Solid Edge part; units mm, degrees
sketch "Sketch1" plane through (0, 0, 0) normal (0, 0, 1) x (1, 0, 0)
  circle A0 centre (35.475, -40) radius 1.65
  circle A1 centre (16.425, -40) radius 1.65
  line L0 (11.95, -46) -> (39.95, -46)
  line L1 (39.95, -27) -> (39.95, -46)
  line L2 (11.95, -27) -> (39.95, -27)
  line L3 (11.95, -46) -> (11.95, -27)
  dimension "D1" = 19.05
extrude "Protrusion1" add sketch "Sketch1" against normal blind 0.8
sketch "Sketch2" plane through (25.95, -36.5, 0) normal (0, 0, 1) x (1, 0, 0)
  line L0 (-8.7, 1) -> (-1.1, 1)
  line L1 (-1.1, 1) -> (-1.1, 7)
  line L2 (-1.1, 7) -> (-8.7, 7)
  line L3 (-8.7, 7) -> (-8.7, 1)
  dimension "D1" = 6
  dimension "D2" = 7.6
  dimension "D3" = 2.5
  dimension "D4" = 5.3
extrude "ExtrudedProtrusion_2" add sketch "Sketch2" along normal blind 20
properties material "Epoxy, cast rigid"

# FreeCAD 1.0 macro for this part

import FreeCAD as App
import Part
import Sketcher
from FreeCAD import Vector
Q = App.Units.Quantity


def add_polygon(sketch, points):
    """Adds a closed chain of lines whose ends are joined by coincident constraints."""
    first, n = sketch.GeometryCount, len(points)
    for a, b in zip(points, points[1:] + points[:1]):
        sketch.addGeometry(Part.LineSegment(App.Vector(*a, 0), App.Vector(*b, 0)), False)
    for i in range(n):
        sketch.addConstraint(Sketcher.Constraint("Coincident", first + i, 2, first + (i + 1) % n, 1))

doc = App.newDocument("Part")
body = doc.addObject("PartDesign::Body", "Body")

sketch1 = body.newObject("Sketcher::SketchObject", "Sketch")
sketch1.AttachmentSupport = (doc.getObject("XY_Plane"), [""])
sketch1.MapMode = "FlatFace"
add_polygon(sketch1, [(11.95, -27), (11.95, -46), (39.95, -46), (39.95, -27)])
sketch1.addGeometry(Part.Circle(Vector(16.425, -40, 0), Vector(0, 0, 1), 1.65), False)
sketch1.addGeometry(Part.Circle(Vector(35.475, -40, 0), Vector(0, 0, 1), 1.65), False)
sketch1.addConstraint([
    Sketcher.Constraint("Vertical", 0),
    Sketcher.Constraint("Horizontal", 1),
    Sketcher.Constraint("Vertical", 2),
    Sketcher.Constraint("Horizontal", 3),
    Sketcher.Constraint("Equal", 4, 5),
    Sketcher.Constraint("Horizontal", 4, 3, 5, 3),
    Sketcher.Constraint("Diameter", 4, Q("3.3 mm")),
    Sketcher.Constraint("DistanceX", 1, 1, 1, 2, Q("28 mm")),
    Sketcher.Constraint("DistanceY", 0, 2, 0, 1, Q("19 mm")),
    Sketcher.Constraint("DistanceY", 4, 3, -1, 1, Q("40 mm")),
    Sketcher.Constraint("DistanceY", 0, 2, -1, 1, Q("46 mm")),
    Sketcher.Constraint("DistanceX", -1, 1, 0, 2, Q("11.95 mm")),
    Sketcher.Constraint("DistanceX", 4, 3, 5, 3, Q("19.05 mm")),
    Sketcher.Constraint("DistanceX", -1, 1, 4, 3, Q("16.425 mm")),
])
pad1 = body.newObject("PartDesign::Pad", "Pad")
pad1.Profile = sketch1
pad1.Length = 0.8
pad1.Reversed = True

sketch2 = body.newObject("Sketcher::SketchObject", "Sketch001")
sketch2.AttachmentSupport = (doc.getObject("XY_Plane"), [""])
sketch2.MapMode = "FlatFace"
add_polygon(sketch2, [(17.25, -29.5), (17.25, -35.5), (24.85, -35.5), (24.85, -29.5)])
sketch2.addConstraint([
    Sketcher.Constraint("Vertical", 0),
    Sketcher.Constraint("Horizontal", 1),
    Sketcher.Constraint("Vertical", 2),
    Sketcher.Constraint("Horizontal", 3),
    Sketcher.Constraint("DistanceY", 0, 2, 0, 1, Q("6 mm")),
    Sketcher.Constraint("DistanceX", 1, 1, 1, 2, Q("7.6 mm")),
    Sketcher.Constraint("DistanceY", 0, 2, -1, 1, Q("35.5 mm")),
    Sketcher.Constraint("DistanceX", -1, 1, 0, 2, Q("17.25 mm")),
])
pad2 = body.newObject("PartDesign::Pad", "Pad001")
pad2.Profile = sketch2
pad2.Length = 20

doc.recompute()
